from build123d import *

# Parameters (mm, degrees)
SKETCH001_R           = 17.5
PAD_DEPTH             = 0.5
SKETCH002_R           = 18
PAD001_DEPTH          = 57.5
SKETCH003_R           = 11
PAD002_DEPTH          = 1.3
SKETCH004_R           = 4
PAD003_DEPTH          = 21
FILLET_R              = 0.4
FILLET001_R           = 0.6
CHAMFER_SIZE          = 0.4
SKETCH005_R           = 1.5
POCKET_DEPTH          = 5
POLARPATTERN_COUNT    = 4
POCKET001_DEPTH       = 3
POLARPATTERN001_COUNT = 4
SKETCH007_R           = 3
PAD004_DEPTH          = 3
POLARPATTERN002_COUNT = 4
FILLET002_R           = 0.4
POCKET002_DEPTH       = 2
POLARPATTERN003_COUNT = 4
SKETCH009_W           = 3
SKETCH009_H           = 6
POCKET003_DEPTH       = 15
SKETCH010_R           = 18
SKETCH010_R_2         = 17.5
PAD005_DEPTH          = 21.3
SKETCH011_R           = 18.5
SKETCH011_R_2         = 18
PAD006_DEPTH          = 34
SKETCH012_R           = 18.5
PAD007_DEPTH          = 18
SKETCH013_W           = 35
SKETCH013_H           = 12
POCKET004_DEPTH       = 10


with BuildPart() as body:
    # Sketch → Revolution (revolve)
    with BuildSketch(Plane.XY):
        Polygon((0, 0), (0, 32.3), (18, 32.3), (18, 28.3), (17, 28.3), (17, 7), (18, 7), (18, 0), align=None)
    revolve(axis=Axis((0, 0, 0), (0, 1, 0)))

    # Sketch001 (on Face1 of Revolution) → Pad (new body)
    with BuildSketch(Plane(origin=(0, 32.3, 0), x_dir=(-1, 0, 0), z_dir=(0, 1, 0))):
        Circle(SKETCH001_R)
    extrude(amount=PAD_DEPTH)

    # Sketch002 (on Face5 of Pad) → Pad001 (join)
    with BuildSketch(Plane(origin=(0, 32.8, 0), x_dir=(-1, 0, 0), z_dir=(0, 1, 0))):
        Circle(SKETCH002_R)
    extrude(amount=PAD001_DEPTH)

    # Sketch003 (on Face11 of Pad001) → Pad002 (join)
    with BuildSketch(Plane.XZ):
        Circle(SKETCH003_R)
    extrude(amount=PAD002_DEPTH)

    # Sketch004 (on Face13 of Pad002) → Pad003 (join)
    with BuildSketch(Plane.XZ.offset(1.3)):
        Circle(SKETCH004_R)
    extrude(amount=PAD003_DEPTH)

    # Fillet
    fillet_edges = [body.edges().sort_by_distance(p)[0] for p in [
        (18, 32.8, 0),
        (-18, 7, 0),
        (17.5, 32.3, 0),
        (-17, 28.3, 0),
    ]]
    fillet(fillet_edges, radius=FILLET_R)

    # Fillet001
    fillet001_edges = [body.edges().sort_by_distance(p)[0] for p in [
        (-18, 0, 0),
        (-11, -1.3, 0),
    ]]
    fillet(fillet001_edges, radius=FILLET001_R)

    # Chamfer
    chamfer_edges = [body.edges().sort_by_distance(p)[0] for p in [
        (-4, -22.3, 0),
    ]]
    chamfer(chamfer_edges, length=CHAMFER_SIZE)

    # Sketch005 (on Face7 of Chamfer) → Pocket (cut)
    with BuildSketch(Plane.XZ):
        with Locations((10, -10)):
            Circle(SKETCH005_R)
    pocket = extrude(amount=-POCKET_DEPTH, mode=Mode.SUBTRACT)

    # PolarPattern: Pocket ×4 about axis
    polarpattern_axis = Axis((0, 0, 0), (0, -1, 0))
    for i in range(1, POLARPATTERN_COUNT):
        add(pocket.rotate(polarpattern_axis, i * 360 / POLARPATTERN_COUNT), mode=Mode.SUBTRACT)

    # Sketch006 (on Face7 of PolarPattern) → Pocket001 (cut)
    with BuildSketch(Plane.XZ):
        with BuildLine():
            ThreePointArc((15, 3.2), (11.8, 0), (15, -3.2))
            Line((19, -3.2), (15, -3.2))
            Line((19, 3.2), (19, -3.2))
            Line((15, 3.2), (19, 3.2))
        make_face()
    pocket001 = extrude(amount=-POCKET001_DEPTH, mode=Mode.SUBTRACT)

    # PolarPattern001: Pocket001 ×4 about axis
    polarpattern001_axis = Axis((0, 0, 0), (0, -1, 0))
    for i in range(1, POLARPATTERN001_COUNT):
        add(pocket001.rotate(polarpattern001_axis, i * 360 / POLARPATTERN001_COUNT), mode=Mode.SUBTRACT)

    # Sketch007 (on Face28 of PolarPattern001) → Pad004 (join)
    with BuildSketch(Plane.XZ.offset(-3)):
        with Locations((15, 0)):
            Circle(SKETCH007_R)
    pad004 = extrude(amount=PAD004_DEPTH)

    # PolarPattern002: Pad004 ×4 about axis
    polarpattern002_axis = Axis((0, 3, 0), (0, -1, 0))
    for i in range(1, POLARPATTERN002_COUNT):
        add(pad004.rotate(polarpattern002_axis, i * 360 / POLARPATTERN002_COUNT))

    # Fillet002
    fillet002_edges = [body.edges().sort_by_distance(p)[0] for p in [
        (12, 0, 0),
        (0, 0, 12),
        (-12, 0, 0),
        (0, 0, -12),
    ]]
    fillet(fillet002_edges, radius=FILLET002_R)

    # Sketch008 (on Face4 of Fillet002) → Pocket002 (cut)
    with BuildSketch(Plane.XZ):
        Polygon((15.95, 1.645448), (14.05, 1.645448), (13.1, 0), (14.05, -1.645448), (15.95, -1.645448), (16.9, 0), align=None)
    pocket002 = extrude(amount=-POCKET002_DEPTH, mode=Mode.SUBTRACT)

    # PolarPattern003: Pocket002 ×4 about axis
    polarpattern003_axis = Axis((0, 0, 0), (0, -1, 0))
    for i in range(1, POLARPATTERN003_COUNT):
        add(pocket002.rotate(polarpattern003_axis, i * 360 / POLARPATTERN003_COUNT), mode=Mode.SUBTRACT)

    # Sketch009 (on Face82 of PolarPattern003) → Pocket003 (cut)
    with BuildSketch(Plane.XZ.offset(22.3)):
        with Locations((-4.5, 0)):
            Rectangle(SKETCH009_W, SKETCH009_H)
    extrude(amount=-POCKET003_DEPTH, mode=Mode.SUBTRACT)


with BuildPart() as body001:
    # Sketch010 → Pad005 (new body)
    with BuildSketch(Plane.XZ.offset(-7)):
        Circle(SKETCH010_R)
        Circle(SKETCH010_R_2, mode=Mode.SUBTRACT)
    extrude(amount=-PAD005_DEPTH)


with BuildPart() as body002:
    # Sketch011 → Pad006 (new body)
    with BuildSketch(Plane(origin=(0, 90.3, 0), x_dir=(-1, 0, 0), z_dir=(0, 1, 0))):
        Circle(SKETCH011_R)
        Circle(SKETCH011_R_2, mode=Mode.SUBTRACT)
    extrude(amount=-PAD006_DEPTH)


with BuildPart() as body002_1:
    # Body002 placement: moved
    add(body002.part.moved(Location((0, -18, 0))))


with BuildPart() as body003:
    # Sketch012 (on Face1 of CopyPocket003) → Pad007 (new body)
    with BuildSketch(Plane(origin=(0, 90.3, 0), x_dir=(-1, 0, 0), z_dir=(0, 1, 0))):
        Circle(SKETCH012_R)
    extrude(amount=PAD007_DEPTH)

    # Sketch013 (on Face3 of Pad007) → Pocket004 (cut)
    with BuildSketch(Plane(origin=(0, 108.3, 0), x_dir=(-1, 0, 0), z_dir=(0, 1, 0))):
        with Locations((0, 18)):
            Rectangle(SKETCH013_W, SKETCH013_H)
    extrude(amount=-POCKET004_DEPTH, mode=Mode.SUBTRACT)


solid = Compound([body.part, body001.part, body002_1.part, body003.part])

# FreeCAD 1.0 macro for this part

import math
import FreeCAD as App
import Part
import Sketcher
Q = App.Units.Quantity


def edges_at(feature, points):
    """Names of the edges that pass closest to the given points."""
    edges = feature.Shape.Edges
    near = lambda p: min(range(len(edges)), key=lambda i: edges[i].distToShape(Part.Vertex(*p))[0])
    return sorted({f"Edge{near(p) + 1}" for p in points})


def add_polygon(sketch, points):
    """Adds a closed chain of lines whose ends are joined by coincident constraints."""
    first, n = sketch.GeometryCount, len(points)
    for a, b in zip(points, points[1:] + points[:1]):
        sketch.addGeometry(Part.LineSegment(App.Vector(*a, 0), App.Vector(*b, 0)), False)
    for i in range(n):
        sketch.addConstraint(Sketcher.Constraint("Coincident", first + i, 2, first + (i + 1) % n, 1))

doc = App.newDocument("Part")
params = doc.addObject("Spreadsheet::Sheet", "Params")
for row, (alias, value) in enumerate([
    ("sketch1_width", "18 mm"),
    ("sketch1_width2", "1 mm"),
    ("sketch1_height", "7 mm"),
    ("sketch1_height2", "4 mm"),
    ("sketch1_height3", "32.3 mm"),
    ("revolution_angle", "360 deg"),
    ("sketch2_diameter", "35 mm"),
    ("pad1_length", "0.5 mm"),
    ("sketch3_diameter", "36 mm"),
    ("pad2_length", "57.5 mm"),
    ("sketch4_diameter", "22 mm"),
    ("pad3_length", "1.3 mm"),
    ("sketch5_diameter", "8 mm"),
    ("pad4_length", "21 mm"),
    ("fillet_radius", "0.4 mm"),
    ("fillet2_radius", "0.6 mm"),
    ("chamfer_size", "0.4 mm"),
    ("sketch6_diameter", "3 mm"),
    ("pocket1_length", "5 mm"),
    ("sketch7_radius", "3.2 mm"),
    ("sketch7_width", "4 mm"),
    ("pocket2_length", "3 mm"),
    ("sketch8_diameter", "6 mm"),
    ("pad5_length", "3 mm"),
    ("fillet3_radius", "0.4 mm"),
    ("sketch9_width", "1.9 mm"),
    ("sketch9_length", "1.9 mm"),
    ("pocket3_length", "2 mm"),
    ("sketch10_width", "3 mm"),
    ("sketch10_height", "6 mm"),
    ("pocket4_length", "15 mm"),
    ("sketch11_diameter", "36 mm"),
    ("sketch11_diameter2", "35 mm"),
    ("pad6_length", "21.3 mm"),
    ("sketch12_diameter", "37 mm"),
    ("sketch12_diameter2", "36 mm"),
    ("pad7_length", "34 mm"),
    ("sketch13_diameter", "37 mm"),
    ("pad8_length", "18 mm"),
    ("sketch14_width", "35 mm"),
    ("sketch14_height", "12 mm"),
    ("pocket5_length", "10 mm"),
], start=1):
    params.set(f"A{row}", alias)
    params.set(f"B{row}", "=" + value)
    params.setAlias(f"B{row}", alias)

body = doc.addObject("PartDesign::Body", "Body")

# Sketch on XY plane
sketch1 = body.newObject("Sketcher::SketchObject", "Sketch")
sketch1.AttachmentSupport = (doc.getObject("XY_Plane"), [""])
sketch1.MapMode = "FlatFace"
add_polygon(sketch1, [(0, 32.3), (0, 0), (18, 0), (18, 7), (17, 7), (17, 28.3), (18, 28.3), (18, 32.3)])  # lines 0-7
sketch1.addConstraint([
    Sketcher.Constraint("Vertical", 0),
    Sketcher.Constraint("Horizontal", 1),
    Sketcher.Constraint("Vertical", 2),
    Sketcher.Constraint("Horizontal", 3),
    Sketcher.Constraint("Vertical", 4),
    Sketcher.Constraint("Horizontal", 5),
    Sketcher.Constraint("Vertical", 6),
    Sketcher.Constraint("Horizontal", 7),
    Sketcher.Constraint("Coincident", 0, 2, -1, 1),
    Sketcher.Constraint("Vertical", 2, 2, 5, 2),
    Sketcher.Constraint("DistanceX", 1, 1, 1, 2, Q("18 mm")),
    Sketcher.Constraint("DistanceX", 3, 2, 3, 1, Q("1 mm")),
    Sketcher.Constraint("DistanceY", 2, 1, 2, 2, Q("7 mm")),
    Sketcher.Constraint("DistanceY", 6, 1, 6, 2, Q("4 mm")),
    Sketcher.Constraint("DistanceY", 0, 2, 0, 1, Q("32.3 mm")),
])
sketch1.setExpression("Constraints[18]", "Params.sketch1_width")
sketch1.setExpression("Constraints[19]", "Params.sketch1_width2")
sketch1.setExpression("Constraints[20]", "Params.sketch1_height")
sketch1.setExpression("Constraints[21]", "Params.sketch1_height2")
sketch1.setExpression("Constraints[22]", "Params.sketch1_height3")
revolution = body.newObject("PartDesign::Revolution", "Revolution")
revolution.Profile = sketch1
revolution.ReferenceAxis = (sketch1, ["V_Axis"])
revolution.setExpression("Angle", "Params.revolution_angle")

# Sketch on XZ plane
sketch2 = body.newObject("Sketcher::SketchObject", "Sketch001")
sketch2.AttachmentSupport = (doc.getObject("XZ_Plane"), [""])
sketch2.MapMode = "FlatFace"
sketch2.AttachmentOffset = App.Placement(App.Vector(0, 0, -32.3), App.Rotation())
sketch2.addGeometry(Part.Circle(App.Vector(0, 0, 0), App.Vector(0, 0, 1), 18), False)
sketch2.addConstraint([
    Sketcher.Constraint("Coincident", 0, 3, -1, 1),
    Sketcher.Constraint("Diameter", 0, Q("35 mm")),
])
sketch2.setExpression("Constraints[1]", "Params.sketch2_diameter")
pad1 = body.newObject("PartDesign::Pad", "Pad")
pad1.Profile = sketch2
pad1.setExpression("Length", "Params.pad1_length")
pad1.Reversed = True

# Sketch on XZ plane
sketch3 = body.newObject("Sketcher::SketchObject", "Sketch002")
sketch3.AttachmentSupport = (doc.getObject("XZ_Plane"), [""])
sketch3.MapMode = "FlatFace"
sketch3.AttachmentOffset = App.Placement(App.Vector(0, 0, -32.8), App.Rotation())
sketch3.addGeometry(Part.Circle(App.Vector(0, 0, 0), App.Vector(0, 0, 1), 18), False)
sketch3.addConstraint([
    Sketcher.Constraint("Coincident", 0, 3, -1, 1),
    Sketcher.Constraint("Diameter", 0, Q("36 mm")),
])
sketch3.setExpression("Constraints[1]", "Params.sketch3_diameter")
pad2 = body.newObject("PartDesign::Pad", "Pad001")
pad2.Profile = sketch3
pad2.setExpression("Length", "Params.pad2_length")
pad2.Reversed = True

# Sketch on XZ plane
sketch4 = body.newObject("Sketcher::SketchObject", "Sketch003")
sketch4.AttachmentSupport = (doc.getObject("XZ_Plane"), [""])
sketch4.MapMode = "FlatFace"
sketch4.addGeometry(Part.Circle(App.Vector(0, 0, 0), App.Vector(0, 0, 1), 11), False)
sketch4.addConstraint([
    Sketcher.Constraint("Coincident", 0, 3, -1, 1),
    Sketcher.Constraint("Diameter", 0, Q("22 mm")),
])
sketch4.setExpression("Constraints[1]", "Params.sketch4_diameter")
pad3 = body.newObject("PartDesign::Pad", "Pad002")
pad3.Profile = sketch4
pad3.setExpression("Length", "Params.pad3_length")

# Sketch on XZ plane
sketch5 = body.newObject("Sketcher::SketchObject", "Sketch004")
sketch5.AttachmentSupport = (doc.getObject("XZ_Plane"), [""])
sketch5.MapMode = "FlatFace"
sketch5.AttachmentOffset = App.Placement(App.Vector(0, 0, 1.3), App.Rotation())
sketch5.addGeometry(Part.Circle(App.Vector(0, 0, 0), App.Vector(0, 0, 1), 4), False)
sketch5.addConstraint([
    Sketcher.Constraint("Coincident", 0, 3, -1, 1),
    Sketcher.Constraint("Diameter", 0, Q("8 mm")),
])
sketch5.setExpression("Constraints[1]", "Params.sketch5_diameter")
pad4 = body.newObject("PartDesign::Pad", "Pad003")
pad4.Profile = sketch5
pad4.setExpression("Length", "Params.pad4_length")
doc.recompute()

fillet = body.newObject("PartDesign::Fillet", "Fillet")
fillet.Base = (pad4, edges_at(pad4, [
    (18, 32.8, 0),
    (-18, 7, 0),
    (17.5, 32.3, 0),
    (-17, 28.3, 0),
]))
fillet.setExpression("Radius", "Params.fillet_radius")
doc.recompute()

fillet2 = body.newObject("PartDesign::Fillet", "Fillet001")
fillet2.Base = (fillet, edges_at(fillet, [(-18, 0, 0), (-11, -1.3, 0)]))
fillet2.setExpression("Radius", "Params.fillet2_radius")
doc.recompute()

chamfer = body.newObject("PartDesign::Chamfer", "Chamfer")
chamfer.Base = (fillet2, edges_at(fillet2, [(-4, -22.3, 0)]))
chamfer.setExpression("Size", "Params.chamfer_size")

# Sketch on XZ plane
sketch6 = body.newObject("Sketcher::SketchObject", "Sketch005")
sketch6.AttachmentSupport = (doc.getObject("XZ_Plane"), [""])
sketch6.MapMode = "FlatFace"
sketch6.addGeometry(Part.Circle(App.Vector(10, -10, 0), App.Vector(0, 0, 1), 1.5), False)
sketch6.addConstraint([
    Sketcher.Constraint("Diameter", 0, Q("3 mm")),
    Sketcher.Constraint("DistanceX", -1, 1, 0, 3, Q("10 mm")),
    Sketcher.Constraint("DistanceY", 0, 3, -1, 1, Q("10 mm")),
])
sketch6.setExpression("Constraints[0]", "Params.sketch6_diameter")
pocket1 = body.newObject("PartDesign::Pocket", "Pocket")
pocket1.Profile = sketch6
pocket1.setExpression("Length", "Params.pocket1_length")
doc.recompute()

polarpattern = body.newObject("PartDesign::PolarPattern", "PolarPattern")
polarpattern.Originals = [pocket1]
polarpattern.Axis = (doc.getObject("Y_Axis"), [""])
polarpattern.Angle = 360
polarpattern.Occurrences = 4
body.Tip = polarpattern

# Sketch on XZ plane
sketch7 = body.newObject("Sketcher::SketchObject", "Sketch006")
sketch7.AttachmentSupport = (doc.getObject("XZ_Plane"), [""])
sketch7.MapMode = "FlatFace"
sketch7.addGeometry([
    Part.ArcOfCircle(Part.Circle(App.Vector(15, 0, 0), App.Vector(0, 0, 1), 3.2), math.radians(90), math.radians(270)),
    Part.LineSegment(App.Vector(15, -3.2, 0), App.Vector(19, -3.2, 0)),
    Part.LineSegment(App.Vector(19, -3.2, 0), App.Vector(19, 3.2, 0)),
    Part.LineSegment(App.Vector(19, 3.2, 0), App.Vector(15, 3.2, 0)),
], False)
sketch7.addConstraint([
    Sketcher.Constraint("Tangent", 0, 2, 1, 1),
    Sketcher.Constraint("Coincident", 1, 2, 2, 1),
    Sketcher.Constraint("Coincident", 2, 2, 3, 1),
    Sketcher.Constraint("Tangent", 3, 2, 0, 1),
    Sketcher.Constraint("Horizontal", 1),
    Sketcher.Constraint("Vertical", 2),
    Sketcher.Constraint("Horizontal", 3),
    Sketcher.Constraint("PointOnObject", 0, 3, -1),
    Sketcher.Constraint("Radius", 0, Q("3.2 mm")),
    Sketcher.Constraint("DistanceX", 1, 1, 1, 2, Q("4 mm")),
    Sketcher.Constraint("DistanceX", -1, 1, 0, 3, Q("15 mm")),
])
sketch7.setExpression("Constraints[8]", "Params.sketch7_radius")
sketch7.setExpression("Constraints[9]", "Params.sketch7_width")
pocket2 = body.newObject("PartDesign::Pocket", "Pocket001")
pocket2.Profile = sketch7
pocket2.setExpression("Length", "Params.pocket2_length")
doc.recompute()

polarpattern2 = body.newObject("PartDesign::PolarPattern", "PolarPattern001")
polarpattern2.Originals = [pocket2]
polarpattern2.Axis = (doc.getObject("Y_Axis"), [""])
polarpattern2.Angle = 360
polarpattern2.Occurrences = 4
body.Tip = polarpattern2

# Sketch on XZ plane
sketch8 = body.newObject("Sketcher::SketchObject", "Sketch007")
sketch8.AttachmentSupport = (doc.getObject("XZ_Plane"), [""])
sketch8.MapMode = "FlatFace"
sketch8.AttachmentOffset = App.Placement(App.Vector(0, 0, -3), App.Rotation())
sketch8.addGeometry(Part.Circle(App.Vector(15, 0, 0), App.Vector(0, 0, 1), 3), False)
sketch8.addConstraint([
    Sketcher.Constraint("PointOnObject", 0, 3, -1),
    Sketcher.Constraint("Diameter", 0, Q("6 mm")),
    Sketcher.Constraint("DistanceX", -1, 1, 0, 3, Q("15 mm")),
])
sketch8.setExpression("Constraints[1]", "Params.sketch8_diameter")
pad5 = body.newObject("PartDesign::Pad", "Pad004")
pad5.Profile = sketch8
pad5.setExpression("Length", "Params.pad5_length")
doc.recompute()

polarpattern3 = body.newObject("PartDesign::PolarPattern", "PolarPattern002")
polarpattern3.Originals = [pad5]
polarpattern3.Axis = (doc.getObject("Y_Axis"), [""])
polarpattern3.Angle = 360
polarpattern3.Occurrences = 4
body.Tip = polarpattern3
doc.recompute()

fillet3 = body.newObject("PartDesign::Fillet", "Fillet002")
fillet3.Base = (polarpattern3, edges_at(polarpattern3, [
    (12, 0, 0),
    (0, 0, 12),
    (-12, 0, 0),
    (0, 0, -12),
]))
fillet3.setExpression("Radius", "Params.fillet3_radius")

# Sketch on XZ plane
sketch9 = body.newObject("Sketcher::SketchObject", "Sketch008")
sketch9.AttachmentSupport = (doc.getObject("XZ_Plane"), [""])
sketch9.MapMode = "FlatFace"
add_polygon(sketch9, [(15.9, 1.6), (14.1, 1.6), (13.1, 0), (14.1, -1.6), (15.9, -1.6), (16.9, 0)])  # lines 0-5
sketch9.addConstraint([
    Sketcher.Constraint("Horizontal", 0),
    Sketcher.Constraint("Horizontal", 3),
    Sketcher.Constraint("Symmetric", 0, 2, 2, 2, -1),
    Sketcher.Constraint("PointOnObject", 1, 2, -1),
    Sketcher.Constraint("PointOnObject", 4, 2, -1),
    Sketcher.Constraint("Parallel", 1, 4),
    Sketcher.Constraint("Parallel", 2, 5),
    Sketcher.Constraint("Angle", 1, Q("-120.000004 deg")),
    Sketcher.Constraint("DistanceX", 0, 2, 0, 1, Q("1.9 mm")),
    Sketcher.Constraint("Distance", 1, Q("1.9 mm")),
    Sketcher.Constraint("DistanceX", -1, 1, 1, 2, Q("13.1 mm")),
])
sketch9.setExpression("Constraints[14]", "Params.sketch9_width")
sketch9.setExpression("Constraints[15]", "Params.sketch9_length")
pocket3 = body.newObject("PartDesign::Pocket", "Pocket002")
pocket3.Profile = sketch9
pocket3.setExpression("Length", "Params.pocket3_length")
doc.recompute()

polarpattern4 = body.newObject("PartDesign::PolarPattern", "PolarPattern003")
polarpattern4.Originals = [pocket3]
polarpattern4.Axis = (doc.getObject("Y_Axis"), [""])
polarpattern4.Angle = 360
polarpattern4.Occurrences = 4
body.Tip = polarpattern4

# Sketch on XZ plane
sketch10 = body.newObject("Sketcher::SketchObject", "Sketch009")
sketch10.AttachmentSupport = (doc.getObject("XZ_Plane"), [""])
sketch10.MapMode = "FlatFace"
sketch10.AttachmentOffset = App.Placement(App.Vector(0, 0, 22.3), App.Rotation())
add_polygon(sketch10, [(-6, 3), (-6, -3), (-3, -3), (-3, 3)])  # lines 0-3
sketch10.addConstraint([
    Sketcher.Constraint("Vertical", 0),
    Sketcher.Constraint("Horizontal", 1),
    Sketcher.Constraint("Vertical", 2),
    Sketcher.Constraint("Horizontal", 3),
    Sketcher.Constraint("DistanceX", 1, 1, 1, 2, Q("3 mm")),
    Sketcher.Constraint("DistanceY", 0, 2, 0, 1, Q("6 mm")),
    Sketcher.Constraint("DistanceX", 0, 2, -1, 1, Q("6 mm")),
    Sketcher.Constraint("DistanceY", 0, 2, -1, 1, Q("3 mm")),
])
sketch10.setExpression("Constraints[8]", "Params.sketch10_width")
sketch10.setExpression("Constraints[9]", "Params.sketch10_height")
pocket4 = body.newObject("PartDesign::Pocket", "Pocket003")
pocket4.Profile = sketch10
pocket4.setExpression("Length", "Params.pocket4_length")
body2 = doc.addObject("PartDesign::Body", "Body001")

# Sketch on XZ plane
sketch11 = body2.newObject("Sketcher::SketchObject", "Sketch010")
sketch11.AttachmentSupport = (doc.getObject("XZ_Plane001"), [""])
sketch11.MapMode = "FlatFace"
sketch11.AttachmentOffset = App.Placement(App.Vector(0, 0, -7), App.Rotation())
sketch11.addGeometry([
    Part.Circle(App.Vector(0, 0, 0), App.Vector(0, 0, 1), 18),
    Part.Circle(App.Vector(0, 0, 0), App.Vector(0, 0, 1), 18),
], False)
sketch11.addConstraint([
    Sketcher.Constraint("Coincident", 0, 3, -1, 1),
    Sketcher.Constraint("Coincident", 1, 3, -1, 1),
    Sketcher.Constraint("Diameter", 0, Q("36 mm")),
    Sketcher.Constraint("Diameter", 1, Q("35 mm")),
])
sketch11.setExpression("Constraints[2]", "Params.sketch11_diameter")
sketch11.setExpression("Constraints[3]", "Params.sketch11_diameter2")
pad6 = body2.newObject("PartDesign::Pad", "Pad005")
pad6.Profile = sketch11
pad6.setExpression("Length", "Params.pad6_length")
pad6.Reversed = True
body3 = doc.addObject("PartDesign::Body", "Body002")

# Sketch on XZ plane
sketch12 = body3.newObject("Sketcher::SketchObject", "Sketch011")
sketch12.AttachmentSupport = (doc.getObject("XZ_Plane002"), [""])
sketch12.MapMode = "FlatFace"
sketch12.AttachmentOffset = App.Placement(App.Vector(0, 0, -90.3), App.Rotation())
sketch12.addGeometry([
    Part.Circle(App.Vector(0, 0, 0), App.Vector(0, 0, 1), 18),
    Part.Circle(App.Vector(0, 0, 0), App.Vector(0, 0, 1), 18),
], False)
sketch12.addConstraint([
    Sketcher.Constraint("Coincident", 0, 3, -1, 1),
    Sketcher.Constraint("Coincident", 1, 3, -1, 1),
    Sketcher.Constraint("Diameter", 0, Q("37 mm")),
    Sketcher.Constraint("Diameter", 1, Q("36 mm")),
])
sketch12.setExpression("Constraints[2]", "Params.sketch12_diameter")
sketch12.setExpression("Constraints[3]", "Params.sketch12_diameter2")
pad7 = body3.newObject("PartDesign::Pad", "Pad006")
pad7.Profile = sketch12
pad7.setExpression("Length", "Params.pad7_length")
body4 = doc.addObject("PartDesign::Body", "Body003")
doc.recompute()

body3.Placement = App.Placement(App.Vector(0, -18, 0), App.Rotation(App.Vector(0, 0, 1), 0))
boolean = body4.newObject("PartDesign::Boolean", "Boolean")
boolean.Type = "Fuse"
boolean.addObjects([body3])
body5 = doc.addObject("PartDesign::Body", "Body004")

# Sketch on XZ plane
sketch13 = body5.newObject("Sketcher::SketchObject", "Sketch012")
sketch13.AttachmentSupport = (doc.getObject("XZ_Plane004"), [""])
sketch13.MapMode = "FlatFace"
sketch13.AttachmentOffset = App.Placement(App.Vector(0, 0, -90.3), App.Rotation())
sketch13.addGeometry(Part.Circle(App.Vector(0, 0, 0), App.Vector(0, 0, 1), 18), False)
sketch13.addConstraint([
    Sketcher.Constraint("Coincident", 0, 3, -1, 1),
    Sketcher.Constraint("Diameter", 0, Q("37 mm")),
])
sketch13.setExpression("Constraints[1]", "Params.sketch13_diameter")
pad8 = body5.newObject("PartDesign::Pad", "Pad007")
pad8.Profile = sketch13
pad8.setExpression("Length", "Params.pad8_length")
pad8.Reversed = True

# Sketch on XZ plane
sketch14 = body5.newObject("Sketcher::SketchObject", "Sketch013")
sketch14.AttachmentSupport = (doc.getObject("XZ_Plane004"), [""])
sketch14.MapMode = "FlatFace"
sketch14.AttachmentOffset = App.Placement(App.Vector(0, 0, -108.3), App.Rotation())
add_polygon(sketch14, [(18, 24), (18, 12), (-18, 12), (-18, 24)])  # lines 0-3
sketch14.addConstraint([
    Sketcher.Constraint("Vertical", 0),
    Sketcher.Constraint("Horizontal", 1),
    Sketcher.Constraint("Vertical", 2),
    Sketcher.Constraint("Horizontal", 3),
    Sketcher.Constraint("DistanceX", 1, 2, 1, 1, Q("35 mm")),
    Sketcher.Constraint("DistanceY", 0, 2, 0, 1, Q("12 mm")),
    Sketcher.Constraint("DistanceY", -1, 1, 0, 2, Q("12 mm")),
    Sketcher.Constraint("DistanceX", -1, 1, 0, 2, Q("17.5 mm")),
])
sketch14.setExpression("Constraints[8]", "Params.sketch14_width")
sketch14.setExpression("Constraints[9]", "Params.sketch14_height")
pocket5 = body5.newObject("PartDesign::Pocket", "Pocket004")
pocket5.Profile = sketch14
pocket5.setExpression("Length", "Params.pocket5_length")
pocket5.Reversed = True

doc.recompute()
